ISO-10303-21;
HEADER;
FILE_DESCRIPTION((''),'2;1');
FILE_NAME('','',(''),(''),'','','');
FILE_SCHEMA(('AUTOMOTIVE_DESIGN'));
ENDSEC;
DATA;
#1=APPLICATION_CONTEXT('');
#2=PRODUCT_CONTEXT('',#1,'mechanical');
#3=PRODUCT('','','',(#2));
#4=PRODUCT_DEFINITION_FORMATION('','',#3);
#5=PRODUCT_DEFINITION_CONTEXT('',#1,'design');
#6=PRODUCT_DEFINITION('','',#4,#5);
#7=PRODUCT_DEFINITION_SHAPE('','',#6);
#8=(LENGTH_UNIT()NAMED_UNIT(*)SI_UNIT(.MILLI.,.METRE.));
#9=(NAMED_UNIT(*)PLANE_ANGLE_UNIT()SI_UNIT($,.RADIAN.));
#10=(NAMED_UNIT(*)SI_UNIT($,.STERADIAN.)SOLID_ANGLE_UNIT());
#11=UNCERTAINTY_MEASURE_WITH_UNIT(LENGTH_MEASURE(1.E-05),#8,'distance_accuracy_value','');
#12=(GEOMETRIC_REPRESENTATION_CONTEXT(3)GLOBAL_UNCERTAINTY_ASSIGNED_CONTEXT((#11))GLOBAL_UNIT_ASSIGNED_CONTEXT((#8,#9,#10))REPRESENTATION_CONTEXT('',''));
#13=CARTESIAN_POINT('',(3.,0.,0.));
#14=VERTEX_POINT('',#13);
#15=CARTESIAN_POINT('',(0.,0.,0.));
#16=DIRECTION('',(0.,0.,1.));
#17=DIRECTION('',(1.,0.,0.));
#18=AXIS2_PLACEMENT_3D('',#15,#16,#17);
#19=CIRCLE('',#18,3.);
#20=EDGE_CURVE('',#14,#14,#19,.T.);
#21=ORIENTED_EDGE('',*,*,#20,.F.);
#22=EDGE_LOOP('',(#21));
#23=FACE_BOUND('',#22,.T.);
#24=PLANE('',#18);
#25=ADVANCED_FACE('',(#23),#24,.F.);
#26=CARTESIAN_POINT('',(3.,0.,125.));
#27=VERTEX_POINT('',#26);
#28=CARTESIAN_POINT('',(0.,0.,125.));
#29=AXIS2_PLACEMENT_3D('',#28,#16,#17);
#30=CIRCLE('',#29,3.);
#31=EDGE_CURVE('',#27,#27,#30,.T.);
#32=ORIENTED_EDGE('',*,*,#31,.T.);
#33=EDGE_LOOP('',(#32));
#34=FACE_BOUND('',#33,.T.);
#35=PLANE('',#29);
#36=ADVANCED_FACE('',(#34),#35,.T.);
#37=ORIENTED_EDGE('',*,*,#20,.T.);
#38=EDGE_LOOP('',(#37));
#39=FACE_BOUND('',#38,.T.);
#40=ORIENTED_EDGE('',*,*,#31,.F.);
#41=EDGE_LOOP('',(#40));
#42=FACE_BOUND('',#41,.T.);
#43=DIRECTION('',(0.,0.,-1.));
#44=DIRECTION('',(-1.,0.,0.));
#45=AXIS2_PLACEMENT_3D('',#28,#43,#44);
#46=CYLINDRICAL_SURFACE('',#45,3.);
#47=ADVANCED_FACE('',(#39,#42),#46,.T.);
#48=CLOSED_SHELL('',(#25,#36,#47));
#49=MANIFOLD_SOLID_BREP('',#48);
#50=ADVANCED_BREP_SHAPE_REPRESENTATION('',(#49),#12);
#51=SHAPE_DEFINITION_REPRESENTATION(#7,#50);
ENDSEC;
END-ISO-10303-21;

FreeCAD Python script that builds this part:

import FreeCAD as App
import Part
import Sketcher

V = App.Vector

doc = App.newDocument("Part")
body = doc.addObject("PartDesign::Body", "Body")

# Sketch on XY plane
sketch1 = body.newObject("Sketcher::SketchObject", "Sketch")
sketch1.AttachmentSupport = (doc.getObject("XY_Plane"), [""])
sketch1.MapMode = "FlatFace"
sketch1.addGeometry(Part.Circle(V(0, 0, 0), V(0, 0, 1), 3), False)
sketch1.addConstraint([
    Sketcher.Constraint("Coincident", 0, 3, -1, 1),
    Sketcher.Constraint("Diameter", 0, 6.0),
])
pad1 = body.newObject("PartDesign::Pad", "Pad")
pad1.Profile = sketch1
pad1.Length = 125

doc.recompute()
